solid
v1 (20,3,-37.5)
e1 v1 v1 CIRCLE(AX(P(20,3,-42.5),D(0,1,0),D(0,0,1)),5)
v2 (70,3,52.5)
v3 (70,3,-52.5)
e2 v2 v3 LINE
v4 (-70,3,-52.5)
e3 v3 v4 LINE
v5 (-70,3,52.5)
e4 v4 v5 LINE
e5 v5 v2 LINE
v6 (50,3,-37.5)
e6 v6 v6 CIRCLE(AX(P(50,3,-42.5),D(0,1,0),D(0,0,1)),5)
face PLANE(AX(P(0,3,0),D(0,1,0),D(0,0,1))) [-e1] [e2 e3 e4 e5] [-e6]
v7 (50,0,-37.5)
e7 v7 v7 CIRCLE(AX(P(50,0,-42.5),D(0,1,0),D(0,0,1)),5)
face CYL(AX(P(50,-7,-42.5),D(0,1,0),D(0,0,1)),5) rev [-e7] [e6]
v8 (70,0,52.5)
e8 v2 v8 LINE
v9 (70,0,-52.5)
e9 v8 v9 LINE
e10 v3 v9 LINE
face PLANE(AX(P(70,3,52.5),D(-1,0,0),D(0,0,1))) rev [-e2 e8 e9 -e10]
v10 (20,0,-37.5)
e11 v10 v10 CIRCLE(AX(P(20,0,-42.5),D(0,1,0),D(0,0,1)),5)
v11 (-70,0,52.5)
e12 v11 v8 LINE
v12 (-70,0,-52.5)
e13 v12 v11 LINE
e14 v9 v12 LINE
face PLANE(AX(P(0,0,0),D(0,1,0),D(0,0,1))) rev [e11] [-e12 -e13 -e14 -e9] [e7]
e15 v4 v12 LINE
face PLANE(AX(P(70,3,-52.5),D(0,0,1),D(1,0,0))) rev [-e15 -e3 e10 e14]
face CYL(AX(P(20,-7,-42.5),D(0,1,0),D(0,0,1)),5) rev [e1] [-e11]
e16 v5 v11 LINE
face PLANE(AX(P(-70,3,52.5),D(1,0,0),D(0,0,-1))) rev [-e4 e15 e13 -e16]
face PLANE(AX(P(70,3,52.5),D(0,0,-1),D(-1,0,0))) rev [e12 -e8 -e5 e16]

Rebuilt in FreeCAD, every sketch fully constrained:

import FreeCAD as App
import Part
import Sketcher

V = App.Vector

doc = App.newDocument("Part")
body = doc.addObject("PartDesign::Body", "Body")

# Sketch on XZ plane
sketch1 = body.newObject("Sketcher::SketchObject", "Sketch")
sketch1.AttachmentSupport = (doc.getObject("XZ_Plane"), [""])
sketch1.MapMode = "FlatFace"
sketch1.addGeometry(Part.LineSegment(V(-70, -52, 0), V(-70, 52, 0)), False)
sketch1.addGeometry(Part.LineSegment(V(-70, 52, 0), V(70, 52, 0)), False)
sketch1.addGeometry(Part.LineSegment(V(70, 52, 0), V(70, -52, 0)), False)
sketch1.addGeometry(Part.LineSegment(V(70, -52, 0), V(-70, -52, 0)), False)
sketch1.addConstraint(Sketcher.Constraint("Coincident", 0, 2, 1, 1))
sketch1.addConstraint(Sketcher.Constraint("Coincident", 1, 2, 2, 1))
sketch1.addConstraint(Sketcher.Constraint("Coincident", 2, 2, 3, 1))
sketch1.addConstraint(Sketcher.Constraint("Coincident", 3, 2, 0, 1))
sketch1.addConstraint(Sketcher.Constraint("Vertical", 0))
sketch1.addConstraint(Sketcher.Constraint("Horizontal", 1))
sketch1.addConstraint(Sketcher.Constraint("Vertical", 2))
sketch1.addConstraint(Sketcher.Constraint("Horizontal", 3))
sketch1.addConstraint(Sketcher.Constraint("Symmetric", 0, 2, 2, 2, -1, 1))
sketch1.addConstraint(Sketcher.Constraint("DistanceX", 1, 1, 1, 2, 140.0))
sketch1.addConstraint(Sketcher.Constraint("DistanceY", 0, 1, 0, 2, 105.0))
pad1 = body.newObject("PartDesign::Pad", "Pad")
pad1.Profile = sketch1
pad1.Length = 3
pad1.Reversed = True

# Sketch on XZ plane
sketch2 = body.newObject("Sketcher::SketchObject", "Sketch001")
sketch2.AttachmentSupport = (doc.getObject("XZ_Plane"), [""])
sketch2.MapMode = "FlatFace"
sketch2.AttachmentOffset = App.Placement(V(0, 0, -3), App.Rotation())
sketch2.addGeometry(Part.Circle(V(50, -42, 0), V(0, 0, 1), 5), False)
sketch2.addGeometry(Part.Circle(V(20, -42, 0), V(0, 0, 1), 5), False)
sketch2.addConstraint(Sketcher.Constraint("Equal", 0, 1))
sketch2.addConstraint(Sketcher.Constraint("Horizontal", 0, 3, 1, 3))
sketch2.addConstraint(Sketcher.Constraint("Diameter", 0, 10.0))
sketch2.addConstraint(Sketcher.Constraint("DistanceX", -1, 1, 0, 3, 50.0))
sketch2.addConstraint(Sketcher.Constraint("DistanceX", -1, 1, 1, 3, 20.0))
sketch2.addConstraint(Sketcher.Constraint("DistanceY", 0, 3, -1, 1, 42.5))
pocket1 = body.newObject("PartDesign::Pocket", "Pocket")
pocket1.Profile = sketch2
pocket1.Length = 10
pocket1.Reversed = True

doc.recompute()
